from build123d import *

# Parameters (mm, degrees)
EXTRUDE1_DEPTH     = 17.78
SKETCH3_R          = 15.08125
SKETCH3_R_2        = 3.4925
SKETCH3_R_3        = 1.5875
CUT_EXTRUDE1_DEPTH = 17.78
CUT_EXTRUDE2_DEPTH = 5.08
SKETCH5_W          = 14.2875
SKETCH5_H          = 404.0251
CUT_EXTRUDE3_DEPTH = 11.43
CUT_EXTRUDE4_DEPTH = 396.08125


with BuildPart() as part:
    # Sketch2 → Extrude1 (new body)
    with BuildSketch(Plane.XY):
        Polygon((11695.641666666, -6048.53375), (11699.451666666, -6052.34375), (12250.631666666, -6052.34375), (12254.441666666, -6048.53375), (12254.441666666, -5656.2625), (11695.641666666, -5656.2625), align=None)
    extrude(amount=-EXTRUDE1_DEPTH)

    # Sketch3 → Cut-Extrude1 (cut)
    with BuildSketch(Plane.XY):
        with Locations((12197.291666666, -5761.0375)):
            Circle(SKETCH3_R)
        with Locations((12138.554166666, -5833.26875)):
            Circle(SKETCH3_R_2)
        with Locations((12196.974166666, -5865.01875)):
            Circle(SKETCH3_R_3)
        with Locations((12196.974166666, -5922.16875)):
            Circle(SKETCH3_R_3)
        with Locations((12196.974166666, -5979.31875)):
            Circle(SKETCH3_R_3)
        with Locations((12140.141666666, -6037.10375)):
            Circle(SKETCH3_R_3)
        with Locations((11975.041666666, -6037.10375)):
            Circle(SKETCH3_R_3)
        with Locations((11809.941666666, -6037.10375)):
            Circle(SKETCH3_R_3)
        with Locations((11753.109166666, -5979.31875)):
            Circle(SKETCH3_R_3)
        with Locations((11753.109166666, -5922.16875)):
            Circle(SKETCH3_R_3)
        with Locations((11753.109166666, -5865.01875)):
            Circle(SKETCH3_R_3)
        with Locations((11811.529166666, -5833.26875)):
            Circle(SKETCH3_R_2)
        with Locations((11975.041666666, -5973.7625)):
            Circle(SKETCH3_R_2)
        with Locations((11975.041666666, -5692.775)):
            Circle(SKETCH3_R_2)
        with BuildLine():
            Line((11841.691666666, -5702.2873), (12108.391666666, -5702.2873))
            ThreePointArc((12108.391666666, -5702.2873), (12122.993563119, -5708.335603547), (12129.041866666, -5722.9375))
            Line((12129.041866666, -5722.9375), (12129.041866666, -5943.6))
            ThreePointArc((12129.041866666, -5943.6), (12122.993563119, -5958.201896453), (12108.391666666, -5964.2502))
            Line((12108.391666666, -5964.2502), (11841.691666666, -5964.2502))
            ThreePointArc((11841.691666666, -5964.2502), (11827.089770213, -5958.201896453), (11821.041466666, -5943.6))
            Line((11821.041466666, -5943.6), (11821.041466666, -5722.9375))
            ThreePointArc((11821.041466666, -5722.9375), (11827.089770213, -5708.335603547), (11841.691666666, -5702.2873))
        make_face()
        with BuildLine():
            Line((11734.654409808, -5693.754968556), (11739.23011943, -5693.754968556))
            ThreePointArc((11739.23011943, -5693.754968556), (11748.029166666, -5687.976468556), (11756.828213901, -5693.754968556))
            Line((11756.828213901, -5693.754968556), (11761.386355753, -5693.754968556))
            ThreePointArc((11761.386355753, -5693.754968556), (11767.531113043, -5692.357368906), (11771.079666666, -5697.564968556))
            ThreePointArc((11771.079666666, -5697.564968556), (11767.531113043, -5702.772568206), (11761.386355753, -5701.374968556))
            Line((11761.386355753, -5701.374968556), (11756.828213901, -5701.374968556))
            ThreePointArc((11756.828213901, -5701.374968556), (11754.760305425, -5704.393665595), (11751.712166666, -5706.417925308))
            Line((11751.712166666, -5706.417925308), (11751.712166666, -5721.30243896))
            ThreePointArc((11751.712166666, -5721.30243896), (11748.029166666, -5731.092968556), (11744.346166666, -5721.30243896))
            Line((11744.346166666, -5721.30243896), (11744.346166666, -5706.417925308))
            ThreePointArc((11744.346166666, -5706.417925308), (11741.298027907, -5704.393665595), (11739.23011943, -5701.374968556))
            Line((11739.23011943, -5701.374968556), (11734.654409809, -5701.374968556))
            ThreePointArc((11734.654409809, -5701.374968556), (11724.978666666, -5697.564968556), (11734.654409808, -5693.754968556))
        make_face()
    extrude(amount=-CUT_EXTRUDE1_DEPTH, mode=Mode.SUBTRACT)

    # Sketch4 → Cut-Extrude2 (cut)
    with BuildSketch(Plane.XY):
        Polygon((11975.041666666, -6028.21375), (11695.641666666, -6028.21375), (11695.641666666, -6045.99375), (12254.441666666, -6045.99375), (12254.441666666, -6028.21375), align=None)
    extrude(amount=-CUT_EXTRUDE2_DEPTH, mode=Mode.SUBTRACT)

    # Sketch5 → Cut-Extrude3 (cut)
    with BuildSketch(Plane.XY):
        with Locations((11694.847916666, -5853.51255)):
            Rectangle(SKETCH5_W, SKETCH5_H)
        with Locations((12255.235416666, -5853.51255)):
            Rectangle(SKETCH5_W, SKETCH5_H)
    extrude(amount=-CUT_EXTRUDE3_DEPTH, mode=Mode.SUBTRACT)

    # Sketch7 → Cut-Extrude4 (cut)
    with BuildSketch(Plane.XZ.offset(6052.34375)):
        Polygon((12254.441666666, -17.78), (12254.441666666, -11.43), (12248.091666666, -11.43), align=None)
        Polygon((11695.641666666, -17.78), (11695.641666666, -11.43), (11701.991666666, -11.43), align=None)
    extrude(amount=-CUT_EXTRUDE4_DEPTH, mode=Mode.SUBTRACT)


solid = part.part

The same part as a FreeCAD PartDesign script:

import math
import FreeCAD as App
import Part
import Sketcher
from FreeCAD import Vector
Q = App.Units.Quantity


def add_polygon(sketch, points):
    """Adds a closed chain of lines whose ends are joined by coincident constraints."""
    first, n = sketch.GeometryCount, len(points)
    for a, b in zip(points, points[1:] + points[:1]):
        sketch.addGeometry(Part.LineSegment(App.Vector(*a, 0), App.Vector(*b, 0)), False)
    for i in range(n):
        sketch.addConstraint(Sketcher.Constraint("Coincident", first + i, 2, first + (i + 1) % n, 1))

doc = App.newDocument("Part")
params = doc.addObject("Spreadsheet::Sheet", "Params")
for row, (alias, value) in enumerate([
    ("sketch1_width", "22 in"),
    ("sketch1_width2", "21.7 in"),
    ("pad1_length", "0.7 in"),
    ("sketch2_radius", "0.22 in"),
    ("sketch2_diameter", "1.1875 in"),
    ("sketch2_diameter2", "0.275 in"),
    ("sketch2_diameter3", "0.125 in"),
    ("sketch2_width", "10.5 in"),
    ("pocket1_length", "0.7 in"),
    ("sketch3_width", "22 in"),
    ("sketch3_height", "0.7 in"),
    ("pocket2_length", "0.2 in"),
    ("sketch4_width", "0.5625 in"),
    ("pocket3_length", "0.45 in"),
    ("sketch5_width", "0.25 in"),
    ("pocket4_length", "15.59375 in"),
], start=1):
    params.set(f"A{row}", alias)
    params.set(f"B{row}", "=" + value)
    params.setAlias(f"B{row}", alias)

body = doc.addObject("PartDesign::Body", "Body")

# Sketch on XY plane
sketch1 = body.newObject("Sketcher::SketchObject", "Sketch")
sketch1.AttachmentSupport = (doc.getObject("XY_Plane"), [""])
sketch1.MapMode = "FlatFace"
add_polygon(sketch1, [(11695.641667, -6048.53375), (11699.451667, -6052.34375), (12250.631667, -6052.34375), (12254.441667, -6048.53375), (12254.441667, -5656.2625), (11695.641667, -5656.2625)])  # lines 0-5
sketch1.addConstraint([
    Sketcher.Constraint("Horizontal", 1),
    Sketcher.Constraint("Vertical", 3),
    Sketcher.Constraint("Horizontal", 4),
    Sketcher.Constraint("Vertical", 5),
    Sketcher.Constraint("Perpendicular", 0, 2),
    Sketcher.Constraint("Horizontal", 2, 2, 5, 2),
    Sketcher.Constraint("Equal", 0, 2),
    Sketcher.Constraint("DistanceX", 4, 2, 4, 1, Q("22 in")),
    Sketcher.Constraint("DistanceX", 1, 1, 1, 2, Q("21.7 in")),
    Sketcher.Constraint("DistanceY", 0, 2, -1, 1, Q("238.28125 in")),
    Sketcher.Constraint("DistanceY", 3, 2, -1, 1, Q("222.6875 in")),
    Sketcher.Constraint("DistanceX", -1, 1, 0, 2, Q("11699.451667 mm")),
])
sketch1.setExpression("Constraints[13]", "Params.sketch1_width")
sketch1.setExpression("Constraints[14]", "Params.sketch1_width2")
pad1 = body.newObject("PartDesign::Pad", "Pad")
pad1.Profile = sketch1
pad1.setExpression("Length", "Params.pad1_length")
pad1.Reversed = True

# Sketch on XY plane
sketch2 = body.newObject("Sketcher::SketchObject", "Sketch001")
sketch2.AttachmentSupport = (doc.getObject("XY_Plane"), [""])
sketch2.MapMode = "FlatFace"
sketch2.addGeometry([
    Part.Circle(Vector(12197.291667, -5761.0375, 0), Vector(0, 0, 1), 15.08125),  # 0
    Part.Circle(Vector(12138.554167, -5833.26875, 0), Vector(0, 0, 1), 3.4925),  # 1
    Part.Circle(Vector(12196.974167, -5865.01875, 0), Vector(0, 0, 1), 1.5875),  # 2
    Part.Circle(Vector(12196.974167, -5922.16875, 0), Vector(0, 0, 1), 1.5875),  # 3
    Part.Circle(Vector(12196.974167, -5979.31875, 0), Vector(0, 0, 1), 1.5875),  # 4
    Part.Circle(Vector(12140.141667, -6037.10375, 0), Vector(0, 0, 1), 1.5875),  # 5
    Part.Circle(Vector(11975.041667, -6037.10375, 0), Vector(0, 0, 1), 1.5875),  # 6
    Part.Circle(Vector(11809.941667, -6037.10375, 0), Vector(0, 0, 1), 1.5875),  # 7
    Part.Circle(Vector(11753.109167, -5979.31875, 0), Vector(0, 0, 1), 1.5875),  # 8
    Part.Circle(Vector(11753.109167, -5922.16875, 0), Vector(0, 0, 1), 1.5875),  # 9
    Part.Circle(Vector(11753.109167, -5865.01875, 0), Vector(0, 0, 1), 1.5875),  # 10
    Part.Circle(Vector(11811.529167, -5833.26875, 0), Vector(0, 0, 1), 3.4925),  # 11
    Part.Circle(Vector(11975.041667, -5973.7625, 0), Vector(0, 0, 1), 3.4925),  # 12
    Part.Circle(Vector(11975.041667, -5692.775, 0), Vector(0, 0, 1), 3.4925),  # 13
    Part.LineSegment(Vector(12108.391667, -5702.2873, 0), Vector(11841.691667, -5702.2873, 0)),  # 14
    Part.ArcOfCircle(Part.Circle(Vector(11841.691667, -5722.9375, 0), Vector(0, 0, 1), 20.6502), math.radians(90), math.radians(180)),  # 15
    Part.LineSegment(Vector(11821.041467, -5722.9375, 0), Vector(11821.041467, -5943.6, 0)),  # 16
    Part.ArcOfCircle(Part.Circle(Vector(11841.691667, -5943.6, 0), Vector(0, 0, 1), 20.6502), math.radians(180), math.radians(270)),  # 17
    Part.LineSegment(Vector(11841.691667, -5964.2502, 0), Vector(12108.391667, -5964.2502, 0)),  # 18
    Part.ArcOfCircle(Part.Circle(Vector(12108.391667, -5943.6, 0), Vector(0, 0, 1), 20.6502), math.radians(-90), math.radians(0)),  # 19
    Part.LineSegment(Vector(12129.041867, -5943.6, 0), Vector(12129.041867, -5722.9375, 0)),  # 20
    Part.ArcOfCircle(Part.Circle(Vector(12108.391667, -5722.9375, 0), Vector(0, 0, 1), 20.6502), math.radians(0), math.radians(90)),  # 21
    Part.LineSegment(Vector(11739.230119, -5693.754969, 0), Vector(11734.65441, -5693.754969, 0)),  # 22
    Part.ArcOfCircle(Part.Circle(Vector(11730.566667, -5697.564969, 0), Vector(0, 0, 1), 5.588), math.radians(42.985886), math.radians(317.014114)),  # 23
    Part.LineSegment(Vector(11734.65441, -5701.374969, 0), Vector(11739.230119, -5701.374969, 0)),  # 24
    Part.ArcOfCircle(Part.Circle(Vector(11748.029167, -5697.564969, 0), Vector(0, 0, 1), 9.5885), math.radians(-156.58732), math.radians(-112.588248)),  # 25
    Part.LineSegment(Vector(11744.346167, -5706.417925, 0), Vector(11744.346167, -5721.302439, 0)),  # 26
    Part.ArcOfCircle(Part.Circle(Vector(11748.029167, -5725.504969, 0), Vector(0, 0, 1), 5.588), math.radians(131.230577), math.radians(408.769423)),  # 27
    Part.LineSegment(Vector(11751.712167, -5721.302439, 0), Vector(11751.712167, -5706.417925, 0)),  # 28
    Part.ArcOfCircle(Part.Circle(Vector(11748.029167, -5697.564969, 0), Vector(0, 0, 1), 9.5885), math.radians(-67.411752), math.radians(-23.41268)),  # 29
    Part.LineSegment(Vector(11756.828214, -5701.374969, 0), Vector(11761.386356, -5701.374969, 0)),  # 30
    Part.ArcOfCircle(Part.Circle(Vector(11765.484242, -5697.564969, 0), Vector(0, 0, 1), 5.595424), math.radians(-137.084932), math.radians(0)),  # 31
    Part.ArcOfCircle(Part.Circle(Vector(11765.484242, -5697.564969, 0), Vector(0, 0, 1), 5.595424), math.radians(0), math.radians(137.084932)),  # 32
    Part.LineSegment(Vector(11761.386356, -5693.754969, 0), Vector(11756.828214, -5693.754969, 0)),  # 33
    Part.ArcOfCircle(Part.Circle(Vector(11748.029167, -5697.564969, 0), Vector(0, 0, 1), 9.5885), math.radians(23.41268), math.radians(156.58732)),  # 34
], False)
sketch2.addConstraint([
    Sketcher.Constraint("Tangent", 14, 2, 15, 1),
    Sketcher.Constraint("Tangent", 15, 2, 16, 1),
    Sketcher.Constraint("Tangent", 16, 2, 17, 1),
    Sketcher.Constraint("Tangent", 17, 2, 18, 1),
    Sketcher.Constraint("Tangent", 18, 2, 19, 1),
    Sketcher.Constraint("Tangent", 19, 2, 20, 1),
    Sketcher.Constraint("Tangent", 20, 2, 21, 1),
    Sketcher.Constraint("Tangent", 21, 2, 14, 1),
    Sketcher.Constraint("Coincident", 22, 2, 23, 1),
    Sketcher.Constraint("Coincident", 23, 2, 24, 1),
    Sketcher.Constraint("Coincident", 24, 2, 25, 1),
    Sketcher.Constraint("Coincident", 25, 2, 26, 1),
    Sketcher.Constraint("Coincident", 26, 2, 27, 1),
    Sketcher.Constraint("Coincident", 27, 2, 28, 1),
    Sketcher.Constraint("Coincident", 28, 2, 29, 1),
    Sketcher.Constraint("Coincident", 29, 2, 30, 1),
    Sketcher.Constraint("Coincident", 30, 2, 31, 1),
    Sketcher.Constraint("Tangent", 31, 2, 32, 1),
    Sketcher.Constraint("Coincident", 32, 2, 33, 1),
    Sketcher.Constraint("Coincident", 33, 2, 34, 1),
    Sketcher.Constraint("Coincident", 34, 2, 22, 1),
    Sketcher.Constraint("Horizontal", 14),
    Sketcher.Constraint("Vertical", 16),
    Sketcher.Constraint("Horizontal", 18),
    Sketcher.Constraint("Vertical", 20),
    Sketcher.Constraint("Horizontal", 22),
    Sketcher.Constraint("Horizontal", 24),
    Sketcher.Constraint("Vertical", 26),
    Sketcher.Constraint("Vertical", 28),
    Sketcher.Constraint("Horizontal", 30),
    Sketcher.Constraint("Horizontal", 33),
    Sketcher.Constraint("Coincident", 29, 3, 25, 3),
    Sketcher.Constraint("Coincident", 34, 3, 25, 3),
    Sketcher.Constraint("Equal", 2, 3),
    Sketcher.Constraint("Equal", 3, 4),
    Sketcher.Constraint("Equal", 4, 5),
    Sketcher.Constraint("Equal", 5, 6),
    Sketcher.Constraint("Equal", 6, 7),
    Sketcher.Constraint("Equal", 7, 8),
    Sketcher.Constraint("Equal", 8, 9),
    Sketcher.Constraint("Equal", 9, 10),
    Sketcher.Constraint("Equal", 1, 11),
    Sketcher.Constraint("Equal", 11, 12),
    Sketcher.Constraint("Equal", 12, 13),
    Sketcher.Constraint("Equal", 15, 17),
    Sketcher.Constraint("Equal", 17, 19),
    Sketcher.Constraint("Equal", 19, 21),
    Sketcher.Constraint("Equal", 23, 27),
    Sketcher.Constraint("Equal", 25, 29),
    Sketcher.Constraint("Equal", 31, 32),
    Sketcher.Constraint("Equal", 29, 34),
    Sketcher.Constraint("Horizontal", 5, 3, 6, 3),
    Sketcher.Constraint("Horizontal", 6, 3, 7, 3),
    Sketcher.Constraint("Horizontal", 4, 3, 8, 3),
    Sketcher.Constraint("Horizontal", 3, 3, 9, 3),
    Sketcher.Constraint("Horizontal", 2, 3, 10, 3),
    Sketcher.Constraint("Horizontal", 1, 3, 11, 3),
    Sketcher.Constraint("Horizontal", 23, 3, 25, 3),
    Sketcher.Constraint("Horizontal", 29, 3, 31, 3),
    Sketcher.Constraint("Horizontal", 26, 2, 27, 2),
    Sketcher.Constraint("Horizontal", 25, 2, 28, 2),
    Sketcher.Constraint("Horizontal", 24, 2, 29, 2),
    Sketcher.Constraint("Horizontal", 34, 3, 31, 2),
    Sketcher.Constraint("Horizontal", 22, 2, 32, 2),
    Sketcher.Constraint("Vertical", 2, 3, 3, 3),
    Sketcher.Constraint("Vertical", 3, 3, 4, 3),
    Sketcher.Constraint("Vertical", 8, 3, 9, 3),
    Sketcher.Constraint("Vertical", 9, 3, 10, 3),
    Sketcher.Constraint("Vertical", 6, 3, 12, 3),
    Sketcher.Constraint("Vertical", 12, 3, 13, 3),
    Sketcher.Constraint("Vertical", 22, 2, 23, 2),
    Sketcher.Constraint("Radius", 23, Q("0.22 in")),
    Sketcher.Constraint("Diameter", 0, Q("1.1875 in")),
    Sketcher.Constraint("Diameter", 1, Q("0.275 in")),
    Sketcher.Constraint("Diameter", 2, Q("0.125 in")),
    Sketcher.Constraint("DistanceX", 14, 2, 14, 1, Q("10.5 in")),
    Sketcher.Constraint("DistanceY", 17, 3, -1, 1, Q("234 in")),
    Sketcher.Constraint("Radius", 15, Q("0.813 in")),
    Sketcher.Constraint("DistanceX", 7, 3, 5, 3, Q("13 in")),
    Sketcher.Constraint("Radius", 25, Q("0.3775 in")),
    Sketcher.Constraint("DistanceX", 1, 3, 2, 3, Q("2.3 in")),
    Sketcher.Constraint("DistanceY", 3, 3, 1, 3, Q("3.5 in")),
    Sketcher.Constraint("DistanceY", 4, 3, 2, 3, Q("4.5 in")),
    Sketcher.Constraint("DistanceX", 6, 3, 5, 3, Q("6.5 in")),
    Sketcher.Constraint("DistanceX", 10, 3, 11, 3, Q("2.3 in")),
    Sketcher.Constraint("DistanceX", 21, 3, 0, 3, Q("3.5 in")),
    Sketcher.Constraint("DistanceY", 0, 3, 21, 3, Q("1.5 in")),
    Sketcher.Constraint("DistanceX", 25, 3, 11, 3, Q("2.5 in")),
    Sketcher.Constraint("DistanceY", 27, 3, 25, 3, Q("1.1 in")),
    Sketcher.Constraint("DistanceY", 23, 2, 22, 2, Q("0.3 in")),
    Sketcher.Constraint("DistanceY", 16, 2, 16, 1, Q("8.6875 in")),
    Sketcher.Constraint("DistanceY", 2, 3, 1, 3, Q("1.25 in")),
    Sketcher.Constraint("DistanceX", 5, 3, 0, 3, Q("2.25 in")),
    Sketcher.Constraint("DistanceX", 26, 2, 27, 2, Q("0.29 in")),
    Sketcher.Constraint("DistanceY", 1, 3, -1, 1, Q("229.65625 in")),
    Sketcher.Constraint("DistanceY", 12, 3, -1, 1, Q("235.1875 in")),
    Sketcher.Constraint("DistanceY", 13, 3, -1, 1, Q("224.125 in")),
    Sketcher.Constraint("DistanceX", 1, 3, 0, 3, Q("2.3125 in")),
    Sketcher.Constraint("DistanceY", 5, 3, 4, 3, Q("2.275 in")),
    Sketcher.Constraint("DistanceX", 8, 3, 1, 3, Q("15.175 in")),
    Sketcher.Constraint("DistanceX", 23, 3, 15, 3, Q("4.375 in")),
    Sketcher.Constraint("Radius", 31, Q("5.595424 mm")),
    Sketcher.Constraint("DistanceX", 28, 2, 31, 2, Q("0.7625 in")),
    Sketcher.Constraint("DistanceY", 23, 3, -1, 1, Q("5697.564969 mm")),
    Sketcher.Constraint("DistanceX", -1, 1, 22, 2, Q("11734.65441 mm")),
])
sketch2.setExpression("Constraints[71]", "Params.sketch2_radius")
sketch2.setExpression("Constraints[72]", "Params.sketch2_diameter")
sketch2.setExpression("Constraints[73]", "Params.sketch2_diameter2")
sketch2.setExpression("Constraints[74]", "Params.sketch2_diameter3")
sketch2.setExpression("Constraints[75]", "Params.sketch2_width")
pocket1 = body.newObject("PartDesign::Pocket", "Pocket")
pocket1.Profile = sketch2
pocket1.setExpression("Length", "Params.pocket1_length")

# Sketch on XY plane
sketch3 = body.newObject("Sketcher::SketchObject", "Sketch002")
sketch3.AttachmentSupport = (doc.getObject("XY_Plane"), [""])
sketch3.MapMode = "FlatFace"
add_polygon(sketch3, [(11695.641667, -6028.21375), (11695.641667, -6045.99375), (12254.441667, -6045.99375), (12254.441667, -6028.21375)])  # lines 0-3
sketch3.addConstraint([
    Sketcher.Constraint("Vertical", 0),
    Sketcher.Constraint("Horizontal", 1),
    Sketcher.Constraint("Vertical", 2),
    Sketcher.Constraint("Horizontal", 3),
    Sketcher.Constraint("DistanceX", 1, 1, 1, 2, Q("22 in")),
    Sketcher.Constraint("DistanceY", 0, 2, 0, 1, Q("0.7 in")),
    Sketcher.Constraint("DistanceY", 0, 2, -1, 1, Q("238.03125 in")),
    Sketcher.Constraint("DistanceX", -1, 1, 0, 2, Q("11695.641667 mm")),
])
sketch3.setExpression("Constraints[8]", "Params.sketch3_width")
sketch3.setExpression("Constraints[9]", "Params.sketch3_height")
pocket2 = body.newObject("PartDesign::Pocket", "Pocket001")
pocket2.Profile = sketch3
pocket2.setExpression("Length", "Params.pocket2_length")

# Sketch on XY plane
sketch4 = body.newObject("Sketcher::SketchObject", "Sketch003")
sketch4.AttachmentSupport = (doc.getObject("XY_Plane"), [""])
sketch4.MapMode = "FlatFace"
add_polygon(sketch4, [(11687.704167, -5651.5), (11687.704167, -6055.5251), (11701.991667, -6055.5251), (11701.991667, -5651.5)])  # lines 0-3
add_polygon(sketch4, [(12248.091667, -5651.5), (12248.091667, -6055.5251), (12262.379167, -6055.5251), (12262.379167, -5651.5)])  # lines 4-7
sketch4.addConstraint([
    Sketcher.Constraint("Vertical", 0),
    Sketcher.Constraint("Horizontal", 1),
    Sketcher.Constraint("Vertical", 2),
    Sketcher.Constraint("Horizontal", 3),
    Sketcher.Constraint("Vertical", 4),
    Sketcher.Constraint("Horizontal", 5),
    Sketcher.Constraint("Vertical", 6),
    Sketcher.Constraint("Horizontal", 7),
    Sketcher.Constraint("Horizontal", 1, 2, 4, 2),
    Sketcher.Constraint("Horizontal", 3, 2, 6, 2),
    Sketcher.Constraint("Equal", 3, 5),
    Sketcher.Constraint("DistanceY", 2, 2, -1, 1, Q("222.5 in")),
    Sketcher.Constraint("DistanceX", 1, 2, 4, 2, Q("21.5 in")),
    Sketcher.Constraint("DistanceX", 1, 1, 1, 2, Q("0.5625 in")),
    Sketcher.Constraint("DistanceY", 0, 2, 0, 1, Q("15.9065 in")),
    Sketcher.Constraint("DistanceX", -1, 1, 0, 2, Q("11687.704167 mm")),
])
sketch4.setExpression("Constraints[21]", "Params.sketch4_width")
pocket3 = body.newObject("PartDesign::Pocket", "Pocket002")
pocket3.Profile = sketch4
pocket3.setExpression("Length", "Params.pocket3_length")

# Sketch on XZ plane
sketch5 = body.newObject("Sketcher::SketchObject", "Sketch004")
sketch5.AttachmentSupport = (doc.getObject("XZ_Plane"), [""])
sketch5.MapMode = "FlatFace"
sketch5.AttachmentOffset = App.Placement(Vector(0, 0, 238.28125 * 25.4), App.Rotation())
add_polygon(sketch5, [(12254.441667, -17.78), (12254.441667, -11.43), (12248.091667, -11.43)])  # lines 0-2
add_polygon(sketch5, [(11695.641667, -11.43), (11695.641667, -17.78), (11701.991667, -11.43)])  # lines 3-5
sketch5.addConstraint([
    Sketcher.Constraint("Vertical", 0),
    Sketcher.Constraint("Horizontal", 1),
    Sketcher.Constraint("Vertical", 3),
    Sketcher.Constraint("Horizontal", 5),
    Sketcher.Constraint("Perpendicular", 2, 4),
    Sketcher.Constraint("Horizontal", 2, 2, 3, 2),
    Sketcher.Constraint("Horizontal", 1, 2, 4, 2),
    Sketcher.Constraint("Equal", 1, 5),
    Sketcher.Constraint("DistanceX", 3, 2, 2, 2, Q("22 in")),
    Sketcher.Constraint("DistanceX", 1, 2, 1, 1, Q("0.25 in")),
    Sketcher.Constraint("DistanceY", 2, 2, -1, 1, Q("0.7 in")),
    Sketcher.Constraint("DistanceX", -1, 1, 0, 2, Q("12254.441667 mm")),
])
sketch5.setExpression("Constraints[15]", "Params.sketch5_width")
pocket4 = body.newObject("PartDesign::Pocket", "Pocket003")
pocket4.Profile = sketch5
pocket4.setExpression("Length", "Params.pocket4_length")

doc.recompute()
